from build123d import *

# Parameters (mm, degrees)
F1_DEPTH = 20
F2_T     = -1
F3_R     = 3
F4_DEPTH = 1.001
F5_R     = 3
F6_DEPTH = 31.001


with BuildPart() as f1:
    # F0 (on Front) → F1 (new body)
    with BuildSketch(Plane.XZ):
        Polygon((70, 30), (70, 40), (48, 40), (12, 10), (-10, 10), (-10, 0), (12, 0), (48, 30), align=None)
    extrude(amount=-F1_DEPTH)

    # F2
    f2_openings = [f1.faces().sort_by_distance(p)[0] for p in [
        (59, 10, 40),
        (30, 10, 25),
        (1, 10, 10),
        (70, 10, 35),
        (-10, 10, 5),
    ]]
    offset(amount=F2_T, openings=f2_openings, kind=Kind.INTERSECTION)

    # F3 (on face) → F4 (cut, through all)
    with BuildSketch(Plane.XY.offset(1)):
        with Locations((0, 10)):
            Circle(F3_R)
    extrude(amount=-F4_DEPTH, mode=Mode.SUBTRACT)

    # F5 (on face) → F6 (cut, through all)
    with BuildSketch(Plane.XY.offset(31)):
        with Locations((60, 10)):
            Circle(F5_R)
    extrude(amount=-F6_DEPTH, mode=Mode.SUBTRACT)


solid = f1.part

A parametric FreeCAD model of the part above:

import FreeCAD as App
import Part
import Sketcher
from FreeCAD import Vector
Q = App.Units.Quantity


def faces_at(feature, points):
    """Names of the faces that lie closest to the given points."""
    faces = feature.Shape.Faces
    near = lambda p: min(range(len(faces)), key=lambda i: faces[i].distToShape(Part.Vertex(*p))[0])
    return sorted({f"Face{near(p) + 1}" for p in points})


def add_polygon(sketch, points):
    """Adds a closed chain of lines whose ends are joined by coincident constraints."""
    first, n = sketch.GeometryCount, len(points)
    for a, b in zip(points, points[1:] + points[:1]):
        sketch.addGeometry(Part.LineSegment(App.Vector(*a, 0), App.Vector(*b, 0)), False)
    for i in range(n):
        sketch.addConstraint(Sketcher.Constraint("Coincident", first + i, 2, first + (i + 1) % n, 1))

doc = App.newDocument("Part")
body = doc.addObject("PartDesign::Body", "Body")

# Sketch on XZ plane
sketch1 = doc.addObject("Sketcher::SketchObject", "Sketch")
body.addObject(sketch1)
sketch1.AttachmentSupport = (doc.XZ_Plane, [""])
sketch1.MapMode = "FlatFace"
add_polygon(sketch1, [(70, 30), (70, 40), (48, 40), (12, 10), (-10, 10), (-10, 0), (12, 0), (48, 30)])  # lines 0-7
sketch1.addConstraint(Sketcher.Constraint("Vertical", 0))
sketch1.addConstraint(Sketcher.Constraint("Horizontal", 1))
sketch1.addConstraint(Sketcher.Constraint("Horizontal", 3))
sketch1.addConstraint(Sketcher.Constraint("Vertical", 4))
sketch1.addConstraint(Sketcher.Constraint("Horizontal", 5))
sketch1.addConstraint(Sketcher.Constraint("Horizontal", 7))
sketch1.addConstraint(Sketcher.Constraint("PointOnObject", 4, 2, -1))
sketch1.addConstraint(Sketcher.Constraint("Parallel", 2, 6))
sketch1.addConstraint(Sketcher.Constraint("Vertical", 2, 2, 5, 2))
sketch1.addConstraint(Sketcher.Constraint("Vertical", 1, 2, 6, 2))
sketch1.addConstraint(Sketcher.Constraint("Equal", 1, 3))
sketch1.addConstraint(Sketcher.Constraint("DistanceX", 1, 2, 1, 1, Q("22 mm")))
sketch1.addConstraint(Sketcher.Constraint("DistanceY", 0, 1, 0, 2, Q("10 mm")))
sketch1.addConstraint(Sketcher.Constraint("DistanceX", -1, 1, 0, 2, Q("70 mm")))
sketch1.addConstraint(Sketcher.Constraint("DistanceY", -1, 1, 0, 2, Q("40 mm")))
sketch1.addConstraint(Sketcher.Constraint("DistanceX", -1, 1, 2, 2, Q("12 mm")))
pad1 = doc.addObject("PartDesign::Pad", "Pad")
body.addObject(pad1)
pad1.Profile = sketch1
pad1.Length = 20
pad1.Reversed = True
doc.recompute()

thickness = doc.addObject("PartDesign::Thickness", "Thickness")
body.addObject(thickness)
thickness.Base = (pad1, faces_at(pad1, [
    (59, 10, 40),
    (30, 10, 25),
    (1, 10, 10),
    (70, 10, 35),
    (-10, 10, 5),
]))
thickness.Value = 1
thickness.Reversed = True
thickness.Join = "Intersection"

# Sketch on XY plane
sketch2 = doc.addObject("Sketcher::SketchObject", "Sketch001")
body.addObject(sketch2)
sketch2.AttachmentSupport = (doc.XY_Plane, [""])
sketch2.MapMode = "FlatFace"
sketch2.AttachmentOffset = App.Placement(Vector(0, 0, 1), App.Rotation())
sketch2.addGeometry(Part.Circle(Vector(0, 10, 0), Vector(0, 0, 1), 3), False)
sketch2.addConstraint(Sketcher.Constraint("PointOnObject", 0, 3, -2))
sketch2.addConstraint(Sketcher.Constraint("Diameter", 0, Q("6 mm")))
sketch2.addConstraint(Sketcher.Constraint("DistanceY", -1, 1, 0, 3, Q("10 mm")))
pocket1 = doc.addObject("PartDesign::Pocket", "Pocket")
body.addObject(pocket1)
pocket1.Profile = sketch2
pocket1.Type = "ThroughAll"

# Sketch on XY plane
sketch3 = doc.addObject("Sketcher::SketchObject", "Sketch002")
body.addObject(sketch3)
sketch3.AttachmentSupport = (doc.XY_Plane, [""])
sketch3.MapMode = "FlatFace"
sketch3.AttachmentOffset = App.Placement(Vector(0, 0, 31), App.Rotation())
sketch3.addGeometry(Part.Circle(Vector(60, 10, 0), Vector(0, 0, 1), 3), False)
sketch3.addConstraint(Sketcher.Constraint("Diameter", 0, Q("6 mm")))
sketch3.addConstraint(Sketcher.Constraint("DistanceX", -1, 1, 0, 3, Q("60 mm")))
sketch3.addConstraint(Sketcher.Constraint("DistanceY", -1, 1, 0, 3, Q("10 mm")))
pocket2 = doc.addObject("PartDesign::Pocket", "Pocket001")
body.addObject(pocket2)
pocket2.Profile = sketch3
pocket2.Type = "ThroughAll"

doc.recompute()
